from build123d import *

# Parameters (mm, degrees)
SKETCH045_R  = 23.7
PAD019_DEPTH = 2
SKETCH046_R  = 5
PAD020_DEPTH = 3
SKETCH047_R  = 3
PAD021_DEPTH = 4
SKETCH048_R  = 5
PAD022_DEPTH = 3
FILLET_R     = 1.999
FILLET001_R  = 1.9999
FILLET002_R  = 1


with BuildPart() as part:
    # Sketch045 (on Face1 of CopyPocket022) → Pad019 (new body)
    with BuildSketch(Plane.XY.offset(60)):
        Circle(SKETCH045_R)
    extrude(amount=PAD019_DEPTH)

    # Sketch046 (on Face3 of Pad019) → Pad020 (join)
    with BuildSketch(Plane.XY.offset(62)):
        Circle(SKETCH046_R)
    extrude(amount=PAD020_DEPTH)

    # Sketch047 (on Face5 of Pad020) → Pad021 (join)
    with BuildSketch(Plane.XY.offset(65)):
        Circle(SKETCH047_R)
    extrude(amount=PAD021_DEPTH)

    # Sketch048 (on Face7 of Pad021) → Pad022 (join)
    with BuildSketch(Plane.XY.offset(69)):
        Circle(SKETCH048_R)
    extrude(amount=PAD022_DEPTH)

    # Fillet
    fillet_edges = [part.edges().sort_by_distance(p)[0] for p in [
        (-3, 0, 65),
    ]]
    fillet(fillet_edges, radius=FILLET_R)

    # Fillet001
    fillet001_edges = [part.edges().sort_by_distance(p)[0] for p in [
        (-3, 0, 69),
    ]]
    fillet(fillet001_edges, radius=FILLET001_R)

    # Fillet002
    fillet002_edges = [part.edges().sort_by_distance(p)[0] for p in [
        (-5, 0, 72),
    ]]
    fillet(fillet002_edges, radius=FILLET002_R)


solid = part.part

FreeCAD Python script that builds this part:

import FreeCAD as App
import Part
import Sketcher
from FreeCAD import Vector


def edges_at(feature, points):
    """Names of the edges that pass closest to the given points."""
    edges = feature.Shape.Edges
    near = lambda p: min(range(len(edges)), key=lambda i: edges[i].distToShape(Part.Vertex(*p))[0])
    return sorted({f"Edge{near(p) + 1}" for p in points})

doc = App.newDocument("Part")
body = doc.addObject("PartDesign::Body", "Body")

# Sketch on XY plane
sketch1 = body.newObject("Sketcher::SketchObject", "Sketch")
sketch1.AttachmentSupport = (doc.getObject("XY_Plane"), [""])
sketch1.MapMode = "FlatFace"
sketch1.AttachmentOffset = App.Placement(Vector(0, 0, 60), App.Rotation())
sketch1.addGeometry(Part.Circle(Vector(0, 0, 0), Vector(0, 0, 1), 24), False)
sketch1.addConstraint(Sketcher.Constraint("Coincident", 0, 3, -1, 1))
sketch1.addConstraint(Sketcher.Constraint("Diameter", 0, 47.4))
pad1 = body.newObject("PartDesign::Pad", "Pad")
pad1.Profile = sketch1
pad1.Length = 2

# Sketch on XY plane
sketch2 = body.newObject("Sketcher::SketchObject", "Sketch001")
sketch2.AttachmentSupport = (doc.getObject("XY_Plane"), [""])
sketch2.MapMode = "FlatFace"
sketch2.AttachmentOffset = App.Placement(Vector(0, 0, 62), App.Rotation())
sketch2.addGeometry(Part.Circle(Vector(0, 0, 0), Vector(0, 0, 1), 5), False)
sketch2.addConstraint(Sketcher.Constraint("Coincident", 0, 3, -1, 1))
sketch2.addConstraint(Sketcher.Constraint("Diameter", 0, 10.0))
pad2 = body.newObject("PartDesign::Pad", "Pad001")
pad2.Profile = sketch2
pad2.Length = 3

# Sketch on XY plane
sketch3 = body.newObject("Sketcher::SketchObject", "Sketch002")
sketch3.AttachmentSupport = (doc.getObject("XY_Plane"), [""])
sketch3.MapMode = "FlatFace"
sketch3.AttachmentOffset = App.Placement(Vector(0, 0, 65), App.Rotation())
sketch3.addGeometry(Part.Circle(Vector(0, 0, 0), Vector(0, 0, 1), 3), False)
sketch3.addConstraint(Sketcher.Constraint("Coincident", 0, 3, -1, 1))
sketch3.addConstraint(Sketcher.Constraint("Diameter", 0, 6.0))
pad3 = body.newObject("PartDesign::Pad", "Pad002")
pad3.Profile = sketch3
pad3.Length = 4

# Sketch on XY plane
sketch4 = body.newObject("Sketcher::SketchObject", "Sketch003")
sketch4.AttachmentSupport = (doc.getObject("XY_Plane"), [""])
sketch4.MapMode = "FlatFace"
sketch4.AttachmentOffset = App.Placement(Vector(0, 0, 69), App.Rotation())
sketch4.addGeometry(Part.Circle(Vector(0, 0, 0), Vector(0, 0, 1), 5), False)
sketch4.addConstraint(Sketcher.Constraint("Coincident", 0, 3, -1, 1))
sketch4.addConstraint(Sketcher.Constraint("Diameter", 0, 10.0))
pad4 = body.newObject("PartDesign::Pad", "Pad003")
pad4.Profile = sketch4
pad4.Length = 3
doc.recompute()

fillet = body.newObject("PartDesign::Fillet", "Fillet")
fillet.Base = (pad4, edges_at(pad4, [(-3, 0, 65)]))
fillet.Radius = 1.999
doc.recompute()

fillet2 = body.newObject("PartDesign::Fillet", "Fillet001")
fillet2.Base = (fillet, edges_at(fillet, [(-3, 0, 69)]))
fillet2.Radius = 1.9999
doc.recompute()

fillet3 = body.newObject("PartDesign::Fillet", "Fillet002")
fillet3.Base = (fillet2, edges_at(fillet2, [(-5, 0, 72)]))
fillet3.Radius = 1

doc.recompute()
